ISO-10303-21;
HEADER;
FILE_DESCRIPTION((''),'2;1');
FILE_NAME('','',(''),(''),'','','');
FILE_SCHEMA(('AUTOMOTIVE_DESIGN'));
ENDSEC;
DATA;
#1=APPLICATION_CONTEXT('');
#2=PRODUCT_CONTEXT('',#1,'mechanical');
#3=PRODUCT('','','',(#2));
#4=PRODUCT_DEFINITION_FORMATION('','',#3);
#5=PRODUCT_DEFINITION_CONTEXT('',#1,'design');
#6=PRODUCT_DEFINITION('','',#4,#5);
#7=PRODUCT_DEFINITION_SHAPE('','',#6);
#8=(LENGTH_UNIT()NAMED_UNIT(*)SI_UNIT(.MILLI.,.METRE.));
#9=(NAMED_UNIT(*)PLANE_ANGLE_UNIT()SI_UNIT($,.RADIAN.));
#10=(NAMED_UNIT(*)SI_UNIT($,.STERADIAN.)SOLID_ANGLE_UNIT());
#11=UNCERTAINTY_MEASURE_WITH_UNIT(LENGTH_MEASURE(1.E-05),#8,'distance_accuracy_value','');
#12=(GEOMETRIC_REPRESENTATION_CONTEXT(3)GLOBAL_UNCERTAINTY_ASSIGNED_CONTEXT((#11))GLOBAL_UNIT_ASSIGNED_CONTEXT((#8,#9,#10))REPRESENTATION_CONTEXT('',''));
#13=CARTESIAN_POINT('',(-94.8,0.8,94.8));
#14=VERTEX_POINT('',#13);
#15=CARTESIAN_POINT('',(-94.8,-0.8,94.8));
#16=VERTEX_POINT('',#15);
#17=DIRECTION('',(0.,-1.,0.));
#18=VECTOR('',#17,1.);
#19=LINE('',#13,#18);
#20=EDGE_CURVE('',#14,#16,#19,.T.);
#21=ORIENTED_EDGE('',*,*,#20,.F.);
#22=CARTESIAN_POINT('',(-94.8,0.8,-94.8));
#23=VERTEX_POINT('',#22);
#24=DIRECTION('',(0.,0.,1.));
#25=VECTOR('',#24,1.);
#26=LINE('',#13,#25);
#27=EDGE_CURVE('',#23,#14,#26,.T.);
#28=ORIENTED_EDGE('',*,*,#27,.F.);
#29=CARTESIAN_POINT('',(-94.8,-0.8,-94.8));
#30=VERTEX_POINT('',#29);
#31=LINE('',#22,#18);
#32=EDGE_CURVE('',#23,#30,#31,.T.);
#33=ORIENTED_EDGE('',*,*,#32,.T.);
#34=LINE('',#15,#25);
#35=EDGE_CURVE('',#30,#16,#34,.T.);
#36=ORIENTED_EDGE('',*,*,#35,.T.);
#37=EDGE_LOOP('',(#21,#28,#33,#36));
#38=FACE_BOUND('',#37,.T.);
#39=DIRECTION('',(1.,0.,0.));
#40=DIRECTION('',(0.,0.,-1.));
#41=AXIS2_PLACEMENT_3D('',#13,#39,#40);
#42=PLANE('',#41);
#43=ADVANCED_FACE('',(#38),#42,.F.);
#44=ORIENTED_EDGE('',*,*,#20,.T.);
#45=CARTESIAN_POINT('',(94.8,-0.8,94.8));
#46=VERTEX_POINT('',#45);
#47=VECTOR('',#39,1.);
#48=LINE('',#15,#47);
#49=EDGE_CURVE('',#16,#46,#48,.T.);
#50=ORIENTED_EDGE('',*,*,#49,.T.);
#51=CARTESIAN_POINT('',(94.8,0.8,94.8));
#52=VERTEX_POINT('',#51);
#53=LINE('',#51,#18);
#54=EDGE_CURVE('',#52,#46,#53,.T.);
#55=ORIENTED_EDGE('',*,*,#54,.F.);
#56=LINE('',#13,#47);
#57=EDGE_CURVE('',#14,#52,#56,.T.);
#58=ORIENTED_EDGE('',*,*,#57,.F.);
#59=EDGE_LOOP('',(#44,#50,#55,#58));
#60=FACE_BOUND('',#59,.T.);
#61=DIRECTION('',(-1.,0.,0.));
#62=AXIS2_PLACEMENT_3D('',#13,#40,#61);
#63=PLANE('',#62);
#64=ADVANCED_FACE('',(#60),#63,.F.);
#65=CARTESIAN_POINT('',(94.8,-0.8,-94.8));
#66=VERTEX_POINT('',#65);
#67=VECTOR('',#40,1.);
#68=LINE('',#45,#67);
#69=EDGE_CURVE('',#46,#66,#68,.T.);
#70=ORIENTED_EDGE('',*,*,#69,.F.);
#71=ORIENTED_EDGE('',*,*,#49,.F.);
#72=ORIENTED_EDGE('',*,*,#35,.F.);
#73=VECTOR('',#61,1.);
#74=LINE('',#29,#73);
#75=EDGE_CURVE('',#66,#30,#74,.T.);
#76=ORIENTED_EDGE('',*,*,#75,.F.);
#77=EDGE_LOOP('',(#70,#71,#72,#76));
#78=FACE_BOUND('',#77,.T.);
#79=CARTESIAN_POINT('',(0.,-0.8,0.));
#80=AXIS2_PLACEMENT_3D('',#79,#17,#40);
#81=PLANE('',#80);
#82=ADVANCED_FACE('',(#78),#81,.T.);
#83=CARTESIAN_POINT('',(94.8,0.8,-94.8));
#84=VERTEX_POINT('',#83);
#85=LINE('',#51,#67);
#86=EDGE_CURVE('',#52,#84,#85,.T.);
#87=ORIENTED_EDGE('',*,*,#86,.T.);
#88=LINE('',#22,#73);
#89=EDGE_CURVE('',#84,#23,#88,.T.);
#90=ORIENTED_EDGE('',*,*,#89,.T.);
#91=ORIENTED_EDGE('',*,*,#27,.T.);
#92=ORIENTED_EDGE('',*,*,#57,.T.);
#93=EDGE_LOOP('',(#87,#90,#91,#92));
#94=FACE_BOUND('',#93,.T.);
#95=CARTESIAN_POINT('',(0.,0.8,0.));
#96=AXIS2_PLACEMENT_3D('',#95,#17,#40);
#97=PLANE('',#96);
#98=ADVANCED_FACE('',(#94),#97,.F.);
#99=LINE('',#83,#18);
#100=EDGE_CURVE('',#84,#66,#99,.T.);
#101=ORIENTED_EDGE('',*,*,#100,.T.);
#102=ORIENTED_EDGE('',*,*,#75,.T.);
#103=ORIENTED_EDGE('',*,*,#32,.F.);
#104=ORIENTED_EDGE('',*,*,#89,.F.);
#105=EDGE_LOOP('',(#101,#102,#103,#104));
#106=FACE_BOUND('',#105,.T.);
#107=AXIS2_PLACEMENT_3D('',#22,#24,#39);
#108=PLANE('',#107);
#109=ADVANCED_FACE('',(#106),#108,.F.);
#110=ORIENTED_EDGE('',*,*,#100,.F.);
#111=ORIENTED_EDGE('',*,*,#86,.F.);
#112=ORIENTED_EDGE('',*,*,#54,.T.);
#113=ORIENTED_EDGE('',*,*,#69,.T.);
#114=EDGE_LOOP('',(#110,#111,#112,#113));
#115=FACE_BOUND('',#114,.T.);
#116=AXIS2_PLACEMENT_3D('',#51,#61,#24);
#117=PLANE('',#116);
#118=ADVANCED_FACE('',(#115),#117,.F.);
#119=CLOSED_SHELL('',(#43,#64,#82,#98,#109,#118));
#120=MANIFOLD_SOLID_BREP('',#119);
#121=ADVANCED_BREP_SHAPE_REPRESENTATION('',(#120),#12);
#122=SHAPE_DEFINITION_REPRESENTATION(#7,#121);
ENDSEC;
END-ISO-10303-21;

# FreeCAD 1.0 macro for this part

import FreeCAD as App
import Part
import Sketcher
from FreeCAD import Vector


def add_polygon(sketch, points):
    """Adds a closed chain of lines whose ends are joined by coincident constraints."""
    first, n = sketch.GeometryCount, len(points)
    for a, b in zip(points, points[1:] + points[:1]):
        sketch.addGeometry(Part.LineSegment(App.Vector(*a, 0), App.Vector(*b, 0)), False)
    for i in range(n):
        sketch.addConstraint(Sketcher.Constraint("Coincident", first + i, 2, first + (i + 1) % n, 1))

doc = App.newDocument("Part")
body = doc.addObject("PartDesign::Body", "Body")

# Sketch on XZ plane
sketch1 = body.newObject("Sketcher::SketchObject", "Sketch")
sketch1.AttachmentSupport = (doc.getObject("XZ_Plane"), [""])
sketch1.MapMode = "FlatFace"
add_polygon(sketch1, [(-94.8, -94.8), (-94.8, 94.8), (94.8, 94.8), (94.8, -94.8)])  # lines 0-3
sketch1.addConstraint(Sketcher.Constraint("Vertical", 0))
sketch1.addConstraint(Sketcher.Constraint("Horizontal", 1))
sketch1.addConstraint(Sketcher.Constraint("Vertical", 2))
sketch1.addConstraint(Sketcher.Constraint("Horizontal", 3))
sketch1.addConstraint(Sketcher.Constraint("Symmetric", 0, 2, 2, 2, -1, 1))
sketch1.addConstraint(Sketcher.Constraint("Equal", 3, 0))
sketch1.addConstraint(Sketcher.Constraint("DistanceX", 1, 1, 1, 2, 189.6))
pad1 = body.newObject("PartDesign::Pad", "Pad")
pad1.Profile = sketch1
pad1.Length = 1.6
pad1.Midplane = True

doc.recompute()
